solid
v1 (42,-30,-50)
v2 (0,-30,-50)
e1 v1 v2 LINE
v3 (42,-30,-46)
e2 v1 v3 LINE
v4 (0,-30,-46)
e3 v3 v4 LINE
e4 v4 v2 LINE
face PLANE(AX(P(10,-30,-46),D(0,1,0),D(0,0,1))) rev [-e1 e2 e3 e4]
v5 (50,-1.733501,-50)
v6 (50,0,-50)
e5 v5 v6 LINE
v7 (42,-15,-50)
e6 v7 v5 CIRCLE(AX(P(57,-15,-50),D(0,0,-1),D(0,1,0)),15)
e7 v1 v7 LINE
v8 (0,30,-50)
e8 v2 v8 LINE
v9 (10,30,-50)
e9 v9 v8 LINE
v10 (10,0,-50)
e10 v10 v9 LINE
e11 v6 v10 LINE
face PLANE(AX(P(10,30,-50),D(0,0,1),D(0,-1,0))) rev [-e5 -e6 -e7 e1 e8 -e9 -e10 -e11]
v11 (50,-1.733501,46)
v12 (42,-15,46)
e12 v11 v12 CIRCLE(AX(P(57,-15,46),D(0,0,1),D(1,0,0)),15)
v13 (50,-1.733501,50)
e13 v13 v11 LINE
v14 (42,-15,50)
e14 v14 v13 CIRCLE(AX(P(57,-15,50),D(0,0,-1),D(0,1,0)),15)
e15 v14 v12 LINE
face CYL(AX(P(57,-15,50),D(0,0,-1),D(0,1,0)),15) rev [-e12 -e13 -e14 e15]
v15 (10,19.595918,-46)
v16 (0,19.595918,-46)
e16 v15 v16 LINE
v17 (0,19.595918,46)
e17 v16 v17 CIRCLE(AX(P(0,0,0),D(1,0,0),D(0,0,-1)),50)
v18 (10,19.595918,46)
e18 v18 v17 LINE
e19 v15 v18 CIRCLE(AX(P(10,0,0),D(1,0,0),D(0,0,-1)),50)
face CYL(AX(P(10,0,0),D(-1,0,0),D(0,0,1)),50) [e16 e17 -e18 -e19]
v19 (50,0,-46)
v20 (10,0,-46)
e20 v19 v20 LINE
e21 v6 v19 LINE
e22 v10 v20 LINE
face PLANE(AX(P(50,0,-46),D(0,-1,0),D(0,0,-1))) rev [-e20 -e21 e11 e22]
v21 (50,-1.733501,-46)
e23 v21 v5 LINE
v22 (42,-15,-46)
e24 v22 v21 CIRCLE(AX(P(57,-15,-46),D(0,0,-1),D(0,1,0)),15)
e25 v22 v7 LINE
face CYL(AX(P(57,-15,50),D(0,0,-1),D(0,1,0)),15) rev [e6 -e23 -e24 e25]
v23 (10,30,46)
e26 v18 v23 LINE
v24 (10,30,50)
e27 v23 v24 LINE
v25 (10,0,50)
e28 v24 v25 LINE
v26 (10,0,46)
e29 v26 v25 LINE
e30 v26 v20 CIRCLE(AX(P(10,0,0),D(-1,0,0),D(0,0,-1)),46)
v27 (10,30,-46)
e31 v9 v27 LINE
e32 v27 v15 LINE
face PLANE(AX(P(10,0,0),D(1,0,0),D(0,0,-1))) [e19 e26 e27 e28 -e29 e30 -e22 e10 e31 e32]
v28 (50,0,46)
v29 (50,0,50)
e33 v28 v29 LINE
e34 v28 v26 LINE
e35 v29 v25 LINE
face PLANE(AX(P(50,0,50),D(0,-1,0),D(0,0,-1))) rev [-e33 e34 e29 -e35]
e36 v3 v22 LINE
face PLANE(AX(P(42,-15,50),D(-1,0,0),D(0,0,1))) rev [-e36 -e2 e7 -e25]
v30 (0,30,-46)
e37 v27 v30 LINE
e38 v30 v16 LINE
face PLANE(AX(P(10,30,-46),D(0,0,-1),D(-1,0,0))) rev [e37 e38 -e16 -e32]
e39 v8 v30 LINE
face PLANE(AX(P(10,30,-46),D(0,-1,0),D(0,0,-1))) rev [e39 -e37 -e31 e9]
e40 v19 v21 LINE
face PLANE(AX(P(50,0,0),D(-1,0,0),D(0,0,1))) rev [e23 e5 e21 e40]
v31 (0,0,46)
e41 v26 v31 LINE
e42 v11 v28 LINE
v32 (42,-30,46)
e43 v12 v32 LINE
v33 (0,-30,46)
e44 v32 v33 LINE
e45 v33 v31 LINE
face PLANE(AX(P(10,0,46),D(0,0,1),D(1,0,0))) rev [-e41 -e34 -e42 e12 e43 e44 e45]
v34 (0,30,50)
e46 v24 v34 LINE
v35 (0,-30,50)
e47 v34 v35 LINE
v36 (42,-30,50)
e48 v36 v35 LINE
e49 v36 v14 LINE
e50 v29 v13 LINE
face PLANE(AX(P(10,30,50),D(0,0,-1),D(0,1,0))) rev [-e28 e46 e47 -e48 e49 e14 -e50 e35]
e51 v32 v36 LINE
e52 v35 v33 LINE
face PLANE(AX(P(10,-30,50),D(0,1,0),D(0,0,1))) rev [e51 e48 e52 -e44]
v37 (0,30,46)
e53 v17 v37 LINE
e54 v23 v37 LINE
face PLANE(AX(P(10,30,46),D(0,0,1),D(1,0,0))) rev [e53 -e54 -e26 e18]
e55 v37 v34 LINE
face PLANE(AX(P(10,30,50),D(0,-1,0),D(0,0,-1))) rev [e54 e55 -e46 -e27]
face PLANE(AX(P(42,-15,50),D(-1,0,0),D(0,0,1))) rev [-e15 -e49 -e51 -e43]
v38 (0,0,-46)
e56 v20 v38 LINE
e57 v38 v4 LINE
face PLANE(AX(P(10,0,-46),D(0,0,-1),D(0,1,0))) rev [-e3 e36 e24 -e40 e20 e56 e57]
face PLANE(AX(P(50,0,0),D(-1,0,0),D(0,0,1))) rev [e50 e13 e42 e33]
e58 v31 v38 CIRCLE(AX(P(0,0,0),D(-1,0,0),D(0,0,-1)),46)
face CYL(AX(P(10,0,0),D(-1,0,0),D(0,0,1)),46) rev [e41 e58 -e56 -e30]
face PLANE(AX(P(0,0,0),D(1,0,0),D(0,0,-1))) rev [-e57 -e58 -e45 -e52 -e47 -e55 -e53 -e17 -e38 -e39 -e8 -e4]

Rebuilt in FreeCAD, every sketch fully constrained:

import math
import FreeCAD as App
import Part
import Sketcher
from FreeCAD import Vector
Q = App.Units.Quantity

doc = App.newDocument("Part")
body = doc.addObject("PartDesign::Body", "Body")

# Sketch on YZ plane
sketch1 = doc.addObject("Sketcher::SketchObject", "Sketch")
body.addObject(sketch1)
sketch1.AttachmentSupport = (doc.YZ_Plane, [""])
sketch1.MapMode = "FlatFace"
sketch1.addGeometry(Part.LineSegment(Vector(30, 46, 0), Vector(30, 50, 0)), False)
sketch1.addGeometry(Part.LineSegment(Vector(30, 50, 0), Vector(-30, 50, 0)), False)
sketch1.addGeometry(Part.LineSegment(Vector(-30, 50, 0), Vector(-30, 46, 0)), False)
sketch1.addGeometry(Part.LineSegment(Vector(-30, 46, 0), Vector(0, 46, 0)), False)
sketch1.addGeometry(Part.ArcOfCircle(Part.Circle(Vector(0, 0, 0), Vector(0, 0, 1), 46), math.radians(-90), math.radians(90)), False)
sketch1.addGeometry(Part.LineSegment(Vector(0, -46, 0), Vector(-30, -46, 0)), False)
sketch1.addGeometry(Part.LineSegment(Vector(-30, -46, 0), Vector(-30, -50, 0)), False)
sketch1.addGeometry(Part.LineSegment(Vector(-30, -50, 0), Vector(30, -50, 0)), False)
sketch1.addGeometry(Part.LineSegment(Vector(30, -50, 0), Vector(30, -46, 0)), False)
sketch1.addGeometry(Part.LineSegment(Vector(30, -46, 0), Vector(19.6, -46, 0)), False)
sketch1.addGeometry(Part.ArcOfCircle(Part.Circle(Vector(0, 0, 0), Vector(0, 0, 1), 50), math.radians(-67), math.radians(67)), False)
sketch1.addGeometry(Part.LineSegment(Vector(19.6, 46, 0), Vector(30, 46, 0)), False)
sketch1.addConstraint(Sketcher.Constraint("Coincident", 0, 2, 1, 1))
sketch1.addConstraint(Sketcher.Constraint("Coincident", 1, 2, 2, 1))
sketch1.addConstraint(Sketcher.Constraint("Coincident", 2, 2, 3, 1))
sketch1.addConstraint(Sketcher.Constraint("Tangent", 3, 2, 4, 2))
sketch1.addConstraint(Sketcher.Constraint("Tangent", 4, 1, 5, 1))
sketch1.addConstraint(Sketcher.Constraint("Coincident", 5, 2, 6, 1))
sketch1.addConstraint(Sketcher.Constraint("Coincident", 6, 2, 7, 1))
sketch1.addConstraint(Sketcher.Constraint("Coincident", 7, 2, 8, 1))
sketch1.addConstraint(Sketcher.Constraint("Coincident", 8, 2, 9, 1))
sketch1.addConstraint(Sketcher.Constraint("Coincident", 9, 2, 10, 1))
sketch1.addConstraint(Sketcher.Constraint("Coincident", 10, 2, 11, 1))
sketch1.addConstraint(Sketcher.Constraint("Coincident", 11, 2, 0, 1))
sketch1.addConstraint(Sketcher.Constraint("Vertical", 0))
sketch1.addConstraint(Sketcher.Constraint("Horizontal", 1))
sketch1.addConstraint(Sketcher.Constraint("Vertical", 2))
sketch1.addConstraint(Sketcher.Constraint("Horizontal", 3))
sketch1.addConstraint(Sketcher.Constraint("Horizontal", 5))
sketch1.addConstraint(Sketcher.Constraint("Vertical", 6))
sketch1.addConstraint(Sketcher.Constraint("Horizontal", 7))
sketch1.addConstraint(Sketcher.Constraint("Vertical", 8))
sketch1.addConstraint(Sketcher.Constraint("Horizontal", 9))
sketch1.addConstraint(Sketcher.Constraint("Horizontal", 11))
sketch1.addConstraint(Sketcher.Constraint("Coincident", 4, 3, -1, 1))
sketch1.addConstraint(Sketcher.Constraint("Coincident", 10, 3, -1, 1))
sketch1.addConstraint(Sketcher.Constraint("Symmetric", 0, 2, 6, 2, -1, 1))
sketch1.addConstraint(Sketcher.Constraint("Symmetric", 2, 2, 8, 2, -1, 1))
sketch1.addConstraint(Sketcher.Constraint("Symmetric", 2, 2, 11, 2, -2))
sketch1.addConstraint(Sketcher.Constraint("Radius", 4, Q("46 mm")))
sketch1.addConstraint(Sketcher.Constraint("Radius", 10, Q("50 mm")))
sketch1.addConstraint(Sketcher.Constraint("DistanceX", 1, 2, 1, 1, Q("60 mm")))
sketch1.addConstraint(Sketcher.Constraint("DistanceY", 0, 1, 0, 2, Q("4 mm")))
pad1 = doc.addObject("PartDesign::Pad", "Pad")
body.addObject(pad1)
pad1.Profile = sketch1
pad1.Length = 10

# Sketch on YZ plane
sketch2 = doc.addObject("Sketcher::SketchObject", "Sketch001")
body.addObject(sketch2)
sketch2.AttachmentSupport = (doc.YZ_Plane, [""])
sketch2.MapMode = "FlatFace"
sketch2.AttachmentOffset = App.Placement(Vector(0, 0, 10), App.Rotation())
sketch2.addGeometry(Part.LineSegment(Vector(0, 50, 0), Vector(-30, 50, 0)), False)
sketch2.addGeometry(Part.LineSegment(Vector(-30, 50, 0), Vector(-30, 46, 0)), False)
sketch2.addGeometry(Part.LineSegment(Vector(-30, 46, 0), Vector(0, 46, 0)), False)
sketch2.addGeometry(Part.LineSegment(Vector(0, 46, 0), Vector(0, 50, 0)), False)
sketch2.addGeometry(Part.LineSegment(Vector(0, -46, 0), Vector(-30, -46, 0)), False)
sketch2.addGeometry(Part.LineSegment(Vector(-30, -46, 0), Vector(-30, -50, 0)), False)
sketch2.addGeometry(Part.LineSegment(Vector(-30, -50, 0), Vector(0, -50, 0)), False)
sketch2.addGeometry(Part.LineSegment(Vector(0, -50, 0), Vector(0, -46, 0)), False)
sketch2.addConstraint(Sketcher.Constraint("Coincident", 0, 2, 1, 1))
sketch2.addConstraint(Sketcher.Constraint("Coincident", 1, 2, 2, 1))
sketch2.addConstraint(Sketcher.Constraint("Coincident", 2, 2, 3, 1))
sketch2.addConstraint(Sketcher.Constraint("Coincident", 3, 2, 0, 1))
sketch2.addConstraint(Sketcher.Constraint("Coincident", 4, 2, 5, 1))
sketch2.addConstraint(Sketcher.Constraint("Coincident", 5, 2, 6, 1))
sketch2.addConstraint(Sketcher.Constraint("Coincident", 6, 2, 7, 1))
sketch2.addConstraint(Sketcher.Constraint("Coincident", 7, 2, 4, 1))
sketch2.addConstraint(Sketcher.Constraint("Horizontal", 0))
sketch2.addConstraint(Sketcher.Constraint("Vertical", 1))
sketch2.addConstraint(Sketcher.Constraint("Horizontal", 2))
sketch2.addConstraint(Sketcher.Constraint("Vertical", 3))
sketch2.addConstraint(Sketcher.Constraint("Horizontal", 4))
sketch2.addConstraint(Sketcher.Constraint("Vertical", 5))
sketch2.addConstraint(Sketcher.Constraint("Horizontal", 6))
sketch2.addConstraint(Sketcher.Constraint("Vertical", 7))
sketch2.addConstraint(Sketcher.Constraint("Symmetric", 3, 2, 6, 2, -1, 1))
sketch2.addConstraint(Sketcher.Constraint("Symmetric", 1, 2, 4, 2, -1))
sketch2.addConstraint(Sketcher.Constraint("PointOnObject", 2, 2, -2))
sketch2.addConstraint(Sketcher.Constraint("DistanceX", 0, 2, 0, 1, Q("30 mm")))
sketch2.addConstraint(Sketcher.Constraint("DistanceY", 1, 2, 1, 1, Q("4 mm")))
sketch2.addConstraint(Sketcher.Constraint("DistanceY", -1, 1, 0, 2, Q("50 mm")))
pad2 = doc.addObject("PartDesign::Pad", "Pad001")
body.addObject(pad2)
pad2.Profile = sketch2
pad2.Length = 40

# Sketch on XY plane
sketch3 = doc.addObject("Sketcher::SketchObject", "Sketch002")
body.addObject(sketch3)
sketch3.AttachmentSupport = (doc.XY_Plane, [""])
sketch3.MapMode = "FlatFace"
sketch3.AttachmentOffset = App.Placement(Vector(0, 0, -50), App.Rotation())
sketch3.addGeometry(Part.LineSegment(Vector(42, -32.3, 0), Vector(42, -15, 0)), False)
sketch3.addGeometry(Part.ArcOfCircle(Part.Circle(Vector(57, -15, 0), Vector(0, 0, 1), 15), math.radians(-90), math.radians(180)), False)
sketch3.addGeometry(Part.LineSegment(Vector(57, -30, 0), Vector(57, -32.3, 0)), False)
sketch3.addGeometry(Part.LineSegment(Vector(57, -32.3, 0), Vector(42, -32.3, 0)), False)
sketch3.addConstraint(Sketcher.Constraint("Tangent", 0, 2, 1, 2))
sketch3.addConstraint(Sketcher.Constraint("Coincident", 1, 1, 2, 1))
sketch3.addConstraint(Sketcher.Constraint("Coincident", 2, 2, 3, 1))
sketch3.addConstraint(Sketcher.Constraint("Coincident", 3, 2, 0, 1))
sketch3.addConstraint(Sketcher.Constraint("Vertical", 0))
sketch3.addConstraint(Sketcher.Constraint("Vertical", 2))
sketch3.addConstraint(Sketcher.Constraint("Horizontal", 3))
sketch3.addConstraint(Sketcher.Constraint("Radius", 1, Q("15 mm")))
sketch3.addConstraint(Sketcher.Constraint("DistanceX", 3, 2, 3, 1, Q("15 mm")))
sketch3.addConstraint(Sketcher.Constraint("DistanceX", -1, 1, 1, 3, Q("57 mm")))
sketch3.addConstraint(Sketcher.Constraint("DistanceY", 1, 3, -1, 1, Q("15 mm")))
sketch3.addConstraint(Sketcher.Constraint("DistanceY", 0, 1, 0, 2, Q("17.281639 mm")))
pocket1 = doc.addObject("PartDesign::Pocket", "Pocket")
body.addObject(pocket1)
pocket1.Profile = sketch3
pocket1.Type = "ThroughAll"
pocket1.Reversed = True

doc.recompute()
